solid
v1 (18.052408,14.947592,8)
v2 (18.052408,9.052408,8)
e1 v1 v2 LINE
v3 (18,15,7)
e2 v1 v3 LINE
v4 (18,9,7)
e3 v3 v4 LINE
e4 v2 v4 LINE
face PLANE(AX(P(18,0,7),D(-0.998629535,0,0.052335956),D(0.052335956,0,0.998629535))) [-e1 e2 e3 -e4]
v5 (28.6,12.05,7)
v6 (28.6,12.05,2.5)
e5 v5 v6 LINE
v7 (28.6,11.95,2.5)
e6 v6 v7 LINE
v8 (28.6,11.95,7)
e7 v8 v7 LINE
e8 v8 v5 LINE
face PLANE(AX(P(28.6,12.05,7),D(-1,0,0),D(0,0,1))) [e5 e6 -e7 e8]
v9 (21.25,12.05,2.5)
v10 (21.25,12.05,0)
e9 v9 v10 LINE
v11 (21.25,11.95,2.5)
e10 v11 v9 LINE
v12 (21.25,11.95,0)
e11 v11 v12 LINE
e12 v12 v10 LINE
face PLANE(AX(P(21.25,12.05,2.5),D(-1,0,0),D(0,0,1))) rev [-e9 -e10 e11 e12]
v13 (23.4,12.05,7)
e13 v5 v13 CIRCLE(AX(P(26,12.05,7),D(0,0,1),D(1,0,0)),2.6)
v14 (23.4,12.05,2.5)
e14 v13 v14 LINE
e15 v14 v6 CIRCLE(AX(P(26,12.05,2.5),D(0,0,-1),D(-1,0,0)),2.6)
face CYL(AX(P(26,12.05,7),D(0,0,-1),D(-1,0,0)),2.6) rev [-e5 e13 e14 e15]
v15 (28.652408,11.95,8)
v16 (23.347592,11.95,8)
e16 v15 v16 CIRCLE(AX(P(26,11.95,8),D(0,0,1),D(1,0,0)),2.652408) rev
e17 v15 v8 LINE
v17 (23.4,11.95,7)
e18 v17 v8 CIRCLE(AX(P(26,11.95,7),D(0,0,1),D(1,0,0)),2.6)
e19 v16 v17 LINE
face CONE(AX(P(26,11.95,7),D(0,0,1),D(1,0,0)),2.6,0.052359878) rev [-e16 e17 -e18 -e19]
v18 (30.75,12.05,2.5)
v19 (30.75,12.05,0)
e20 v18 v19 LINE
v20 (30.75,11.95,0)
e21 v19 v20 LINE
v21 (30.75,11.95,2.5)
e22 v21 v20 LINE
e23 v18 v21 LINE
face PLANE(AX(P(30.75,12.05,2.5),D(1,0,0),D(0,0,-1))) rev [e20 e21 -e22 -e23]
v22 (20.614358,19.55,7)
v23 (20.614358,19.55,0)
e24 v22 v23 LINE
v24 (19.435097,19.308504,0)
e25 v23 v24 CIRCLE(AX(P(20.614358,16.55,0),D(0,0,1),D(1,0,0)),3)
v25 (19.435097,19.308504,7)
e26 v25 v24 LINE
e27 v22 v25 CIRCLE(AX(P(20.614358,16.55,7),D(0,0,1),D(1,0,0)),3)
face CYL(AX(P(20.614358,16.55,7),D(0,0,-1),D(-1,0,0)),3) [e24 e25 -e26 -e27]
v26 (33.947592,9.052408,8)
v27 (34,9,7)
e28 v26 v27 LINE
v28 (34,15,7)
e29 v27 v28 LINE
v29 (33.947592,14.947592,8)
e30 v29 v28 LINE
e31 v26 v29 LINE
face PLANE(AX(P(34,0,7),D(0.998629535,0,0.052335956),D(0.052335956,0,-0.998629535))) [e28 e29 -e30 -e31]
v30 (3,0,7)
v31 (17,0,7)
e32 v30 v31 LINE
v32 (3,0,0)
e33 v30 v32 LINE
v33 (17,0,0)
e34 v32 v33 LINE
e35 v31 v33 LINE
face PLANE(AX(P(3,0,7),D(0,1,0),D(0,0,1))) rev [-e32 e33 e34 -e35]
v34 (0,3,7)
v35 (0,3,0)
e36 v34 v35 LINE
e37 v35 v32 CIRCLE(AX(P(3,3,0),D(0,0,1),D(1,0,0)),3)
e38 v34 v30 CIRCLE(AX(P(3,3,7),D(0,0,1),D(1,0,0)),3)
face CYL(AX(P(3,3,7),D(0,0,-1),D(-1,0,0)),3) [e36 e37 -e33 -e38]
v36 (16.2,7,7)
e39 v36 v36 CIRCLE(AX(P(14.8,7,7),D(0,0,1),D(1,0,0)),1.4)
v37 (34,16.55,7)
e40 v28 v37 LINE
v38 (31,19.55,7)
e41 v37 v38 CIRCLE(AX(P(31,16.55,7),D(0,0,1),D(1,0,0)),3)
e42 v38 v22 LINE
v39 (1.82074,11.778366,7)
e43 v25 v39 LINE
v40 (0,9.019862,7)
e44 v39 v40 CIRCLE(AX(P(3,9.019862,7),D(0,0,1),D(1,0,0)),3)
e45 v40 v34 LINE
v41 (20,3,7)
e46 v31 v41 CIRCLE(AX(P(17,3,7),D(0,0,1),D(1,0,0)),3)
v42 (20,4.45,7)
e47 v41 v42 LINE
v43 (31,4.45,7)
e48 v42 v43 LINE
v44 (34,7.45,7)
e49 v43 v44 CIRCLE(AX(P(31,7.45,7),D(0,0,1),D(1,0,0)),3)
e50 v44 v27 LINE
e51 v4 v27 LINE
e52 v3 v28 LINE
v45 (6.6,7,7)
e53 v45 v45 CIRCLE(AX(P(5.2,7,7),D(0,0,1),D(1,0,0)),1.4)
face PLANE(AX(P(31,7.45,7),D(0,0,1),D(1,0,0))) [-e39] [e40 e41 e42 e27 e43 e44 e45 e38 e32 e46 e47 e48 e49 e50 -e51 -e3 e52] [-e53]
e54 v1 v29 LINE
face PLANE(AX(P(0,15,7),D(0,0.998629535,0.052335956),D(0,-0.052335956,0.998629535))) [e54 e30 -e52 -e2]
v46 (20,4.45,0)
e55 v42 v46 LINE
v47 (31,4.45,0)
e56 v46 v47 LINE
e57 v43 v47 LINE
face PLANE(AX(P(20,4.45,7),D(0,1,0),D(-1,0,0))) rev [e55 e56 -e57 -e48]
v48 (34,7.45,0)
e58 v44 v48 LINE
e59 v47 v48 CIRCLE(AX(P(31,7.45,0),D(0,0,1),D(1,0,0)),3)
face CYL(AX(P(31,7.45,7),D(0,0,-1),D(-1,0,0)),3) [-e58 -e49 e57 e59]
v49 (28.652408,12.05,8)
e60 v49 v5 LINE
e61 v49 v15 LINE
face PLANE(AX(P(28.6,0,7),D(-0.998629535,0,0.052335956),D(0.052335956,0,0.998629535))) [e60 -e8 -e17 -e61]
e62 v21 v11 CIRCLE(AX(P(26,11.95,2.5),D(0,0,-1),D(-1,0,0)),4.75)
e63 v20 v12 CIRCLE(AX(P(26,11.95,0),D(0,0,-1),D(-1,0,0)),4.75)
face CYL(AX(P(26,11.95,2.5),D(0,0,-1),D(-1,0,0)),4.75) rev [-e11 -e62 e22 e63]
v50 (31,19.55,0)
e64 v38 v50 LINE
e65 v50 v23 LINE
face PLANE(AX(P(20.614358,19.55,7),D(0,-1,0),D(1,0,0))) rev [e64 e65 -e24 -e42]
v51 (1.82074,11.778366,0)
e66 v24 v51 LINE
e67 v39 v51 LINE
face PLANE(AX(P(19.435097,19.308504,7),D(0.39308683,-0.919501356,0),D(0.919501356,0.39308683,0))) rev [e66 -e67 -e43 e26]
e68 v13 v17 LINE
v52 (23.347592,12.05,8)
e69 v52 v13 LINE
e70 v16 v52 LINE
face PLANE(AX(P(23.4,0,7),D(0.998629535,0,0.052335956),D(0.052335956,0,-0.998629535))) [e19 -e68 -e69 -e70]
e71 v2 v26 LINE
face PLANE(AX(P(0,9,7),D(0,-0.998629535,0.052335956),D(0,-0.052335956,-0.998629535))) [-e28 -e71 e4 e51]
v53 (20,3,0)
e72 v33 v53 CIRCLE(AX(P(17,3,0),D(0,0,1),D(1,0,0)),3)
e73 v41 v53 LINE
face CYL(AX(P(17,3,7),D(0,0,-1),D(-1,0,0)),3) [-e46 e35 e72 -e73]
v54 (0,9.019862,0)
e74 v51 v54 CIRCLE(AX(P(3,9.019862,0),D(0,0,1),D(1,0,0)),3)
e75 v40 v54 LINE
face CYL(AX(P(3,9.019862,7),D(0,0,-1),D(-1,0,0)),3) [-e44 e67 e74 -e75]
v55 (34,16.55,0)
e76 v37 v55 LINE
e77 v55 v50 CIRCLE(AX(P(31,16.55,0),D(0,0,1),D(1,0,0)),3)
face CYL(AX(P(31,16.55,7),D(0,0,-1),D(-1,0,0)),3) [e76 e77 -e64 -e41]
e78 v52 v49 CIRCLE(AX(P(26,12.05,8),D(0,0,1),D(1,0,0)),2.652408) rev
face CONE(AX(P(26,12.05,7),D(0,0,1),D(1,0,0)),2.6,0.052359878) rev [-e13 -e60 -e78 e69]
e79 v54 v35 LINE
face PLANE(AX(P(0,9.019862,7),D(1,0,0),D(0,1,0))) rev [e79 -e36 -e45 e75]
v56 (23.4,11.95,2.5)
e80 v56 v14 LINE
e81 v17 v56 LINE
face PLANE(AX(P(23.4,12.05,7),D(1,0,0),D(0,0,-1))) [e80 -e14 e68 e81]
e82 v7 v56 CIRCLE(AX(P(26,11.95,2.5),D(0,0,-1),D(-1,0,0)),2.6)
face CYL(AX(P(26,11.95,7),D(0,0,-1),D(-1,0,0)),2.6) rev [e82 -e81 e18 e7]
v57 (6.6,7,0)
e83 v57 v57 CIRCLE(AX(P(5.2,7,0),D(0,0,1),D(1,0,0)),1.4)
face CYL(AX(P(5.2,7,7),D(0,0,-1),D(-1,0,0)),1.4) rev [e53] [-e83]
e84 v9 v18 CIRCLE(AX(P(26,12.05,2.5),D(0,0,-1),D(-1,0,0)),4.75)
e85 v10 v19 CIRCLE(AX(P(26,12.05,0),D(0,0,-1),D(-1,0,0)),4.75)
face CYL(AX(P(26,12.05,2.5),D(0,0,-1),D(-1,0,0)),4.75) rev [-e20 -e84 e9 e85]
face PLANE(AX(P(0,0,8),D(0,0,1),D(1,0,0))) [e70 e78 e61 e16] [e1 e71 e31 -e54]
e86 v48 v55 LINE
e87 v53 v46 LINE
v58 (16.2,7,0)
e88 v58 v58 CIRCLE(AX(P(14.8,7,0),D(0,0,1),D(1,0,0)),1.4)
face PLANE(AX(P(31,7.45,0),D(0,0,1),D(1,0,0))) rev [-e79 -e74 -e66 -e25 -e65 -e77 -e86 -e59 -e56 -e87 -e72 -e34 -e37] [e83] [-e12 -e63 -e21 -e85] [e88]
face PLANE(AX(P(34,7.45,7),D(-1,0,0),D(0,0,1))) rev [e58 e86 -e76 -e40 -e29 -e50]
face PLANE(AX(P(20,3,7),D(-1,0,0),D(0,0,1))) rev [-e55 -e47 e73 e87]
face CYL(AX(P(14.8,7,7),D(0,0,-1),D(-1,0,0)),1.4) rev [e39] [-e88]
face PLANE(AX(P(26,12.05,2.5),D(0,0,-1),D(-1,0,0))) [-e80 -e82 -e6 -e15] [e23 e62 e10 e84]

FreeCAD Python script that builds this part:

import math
import FreeCAD as App
import Part
import Sketcher

V = App.Vector
Q = App.Units.Quantity


def faces_at(feature, points):
    """Names of the faces that lie closest to the given points."""
    faces = feature.Shape.Faces
    near = lambda p: min(range(len(faces)), key=lambda i: faces[i].distToShape(Part.Vertex(*p))[0])
    return sorted({f"Face{near(p) + 1}" for p in points})

doc = App.newDocument("Part")
body = doc.addObject("PartDesign::Body", "Body")

sketch1 = body.newObject("Sketcher::SketchObject", "Sketch")
sketch1.AttachmentSupport = (doc.getObject("XY_Plane"), [""])
sketch1.MapMode = "FlatFace"
sketch1.addGeometry(Part.LineSegment(V(3, 0, 0), V(17, 0, 0)), False)
sketch1.addGeometry(Part.ArcOfCircle(Part.Circle(V(17, 3, 0), V(0, 0, 1), 3), math.radians(-90), math.radians(0)), False)
sketch1.addGeometry(Part.LineSegment(V(20, 3, 0), V(20, 4.45, 0)), False)
sketch1.addGeometry(Part.LineSegment(V(20, 4.45, 0), V(31, 4.45, 0)), False)
sketch1.addGeometry(Part.ArcOfCircle(Part.Circle(V(31, 7.45, 0), V(0, 0, 1), 3), math.radians(-90), math.radians(0)), False)
sketch1.addGeometry(Part.LineSegment(V(34, 7.45, 0), V(34, 16.55, 0)), False)
sketch1.addGeometry(Part.ArcOfCircle(Part.Circle(V(31, 16.55, 0), V(0, 0, 1), 3), math.radians(0), math.radians(90)), False)
sketch1.addGeometry(Part.LineSegment(V(31, 19.55, 0), V(20.61, 19.55, 0)), False)
sketch1.addGeometry(Part.ArcOfCircle(Part.Circle(V(20.61, 16.55, 0), V(0, 0, 1), 3), math.radians(90), math.radians(113)), False)
sketch1.addGeometry(Part.LineSegment(V(19.44, 19.31, 0), V(1.82, 11.78, 0)), False)
sketch1.addGeometry(Part.ArcOfCircle(Part.Circle(V(3, 9.02, 0), V(0, 0, 1), 3), math.radians(113), math.radians(180)), False)
sketch1.addGeometry(Part.LineSegment(V(0, 9.02, 0), V(0, 3, 0)), False)
sketch1.addGeometry(Part.ArcOfCircle(Part.Circle(V(3, 3, 0), V(0, 0, 1), 3), math.radians(180), math.radians(270)), False)
sketch1.addGeometry(Part.Circle(V(5.2, 7, 0), V(0, 0, 1), 1.4), False)
sketch1.addGeometry(Part.Circle(V(14.8, 7, 0), V(0, 0, 1), 1.4), False)
sketch1.addGeometry(Part.ArcOfCircle(Part.Circle(V(26, 12.05, 0), V(0, 0, 1), 2.6), math.radians(0), math.radians(180)), False)
sketch1.addGeometry(Part.LineSegment(V(28.6, 12.05, 0), V(28.6, 11.95, 0)), False)
sketch1.addGeometry(Part.ArcOfCircle(Part.Circle(V(26, 11.95, 0), V(0, 0, 1), 2.6), math.radians(180), math.radians(360)), False)
sketch1.addGeometry(Part.LineSegment(V(23.4, 11.95, 0), V(23.4, 12.05, 0)), False)
sketch1.addConstraint(Sketcher.Constraint("Tangent", 0, 2, 1, 1))
sketch1.addConstraint(Sketcher.Constraint("Tangent", 1, 2, 2, 1))
sketch1.addConstraint(Sketcher.Constraint("Coincident", 2, 2, 3, 1))
sketch1.addConstraint(Sketcher.Constraint("Tangent", 3, 2, 4, 1))
sketch1.addConstraint(Sketcher.Constraint("Tangent", 4, 2, 5, 1))
sketch1.addConstraint(Sketcher.Constraint("Tangent", 5, 2, 6, 1))
sketch1.addConstraint(Sketcher.Constraint("Tangent", 6, 2, 7, 1))
sketch1.addConstraint(Sketcher.Constraint("Tangent", 7, 2, 8, 1))
sketch1.addConstraint(Sketcher.Constraint("Tangent", 8, 2, 9, 1))
sketch1.addConstraint(Sketcher.Constraint("Tangent", 9, 2, 10, 1))
sketch1.addConstraint(Sketcher.Constraint("Tangent", 10, 2, 11, 1))
sketch1.addConstraint(Sketcher.Constraint("Tangent", 11, 2, 12, 1))
sketch1.addConstraint(Sketcher.Constraint("Tangent", 12, 2, 0, 1))
sketch1.addConstraint(Sketcher.Constraint("Tangent", 15, 1, 16, 1))
sketch1.addConstraint(Sketcher.Constraint("Tangent", 16, 2, 17, 2))
sketch1.addConstraint(Sketcher.Constraint("Tangent", 17, 1, 18, 1))
sketch1.addConstraint(Sketcher.Constraint("Tangent", 18, 2, 15, 2))
sketch1.addConstraint(Sketcher.Constraint("Horizontal", 0))
sketch1.addConstraint(Sketcher.Constraint("Vertical", 2))
sketch1.addConstraint(Sketcher.Constraint("Horizontal", 3))
sketch1.addConstraint(Sketcher.Constraint("Vertical", 5))
sketch1.addConstraint(Sketcher.Constraint("Horizontal", 7))
sketch1.addConstraint(Sketcher.Constraint("Vertical", 11))
sketch1.addConstraint(Sketcher.Constraint("Vertical", 16))
sketch1.addConstraint(Sketcher.Constraint("Vertical", 18))
sketch1.addConstraint(Sketcher.Constraint("Equal", 1, 4))
sketch1.addConstraint(Sketcher.Constraint("Equal", 4, 6))
sketch1.addConstraint(Sketcher.Constraint("Equal", 6, 8))
sketch1.addConstraint(Sketcher.Constraint("Equal", 8, 10))
sketch1.addConstraint(Sketcher.Constraint("Equal", 10, 12))
sketch1.addConstraint(Sketcher.Constraint("Equal", 13, 14))
sketch1.addConstraint(Sketcher.Constraint("PointOnObject", 0, 2, -1))
sketch1.addConstraint(Sketcher.Constraint("PointOnObject", 10, 2, -2))
sketch1.addConstraint(Sketcher.Constraint("Horizontal", 13, 3, 14, 3))
sketch1.addConstraint(Sketcher.Constraint("Radius", 1, Q("3 mm")))
sketch1.addConstraint(Sketcher.Constraint("Diameter", 13, Q("2.8 mm")))
sketch1.addConstraint(Sketcher.Constraint("Radius", 15, Q("2.6 mm")))
sketch1.addConstraint(Sketcher.Constraint("DistanceX", 0, 1, 0, 2, Q("14 mm")))
sketch1.addConstraint(Sketcher.Constraint("DistanceX", 3, 1, 3, 2, Q("11 mm")))
sketch1.addConstraint(Sketcher.Constraint("DistanceY", 5, 1, 5, 2, Q("9.1 mm")))
sketch1.addConstraint(Sketcher.Constraint("DistanceY", 16, 2, 16, 1, Q("0.1 mm")))
sketch1.addConstraint(Sketcher.Constraint("DistanceY", -1, 1, 13, 3, Q("7 mm")))
sketch1.addConstraint(Sketcher.Constraint("DistanceX", -1, 1, 15, 3, Q("26 mm")))
sketch1.addConstraint(Sketcher.Constraint("DistanceY", 2, 1, 2, 2, Q("1.45 mm")))
sketch1.addConstraint(Sketcher.Constraint("DistanceX", -1, 1, 13, 3, Q("5.2 mm")))
sketch1.addConstraint(Sketcher.Constraint("DistanceX", -1, 1, 14, 3, Q("14.8 mm")))
sketch1.addConstraint(Sketcher.Constraint("DistanceY", 15, 3, 6, 3, Q("4.5 mm")))
sketch1.addConstraint(Sketcher.Constraint("DistanceX", 7, 2, 7, 1, Q("10.385642 mm")))
sketch1.addConstraint(Sketcher.Constraint("DistanceY", 11, 2, 11, 1, Q("6.019862 mm")))
pad1 = body.newObject("PartDesign::Pad", "Pad")
pad1.Profile = sketch1
pad1.Length = 7

sketch2 = body.newObject("Sketcher::SketchObject", "Sketch001")
sketch2.AttachmentSupport = (doc.getObject("XY_Plane"), [""])
sketch2.MapMode = "FlatFace"
sketch2.addGeometry(Part.LineSegment(V(21.25, 11.95, 0), V(21.25, 12.05, 0)), False)
sketch2.addGeometry(Part.ArcOfCircle(Part.Circle(V(26, 12.05, 0), V(0, 0, 1), 4.75), math.radians(0), math.radians(180)), False)
sketch2.addGeometry(Part.LineSegment(V(30.75, 12.05, 0), V(30.75, 11.95, 0)), False)
sketch2.addGeometry(Part.ArcOfCircle(Part.Circle(V(26, 11.95, 0), V(0, 0, 1), 4.75), math.radians(180), math.radians(360)), False)
sketch2.addConstraint(Sketcher.Constraint("Tangent", 0, 2, 1, 2))
sketch2.addConstraint(Sketcher.Constraint("Tangent", 1, 1, 2, 1))
sketch2.addConstraint(Sketcher.Constraint("Tangent", 2, 2, 3, 2))
sketch2.addConstraint(Sketcher.Constraint("Tangent", 3, 1, 0, 1))
sketch2.addConstraint(Sketcher.Constraint("Vertical", 0))
sketch2.addConstraint(Sketcher.Constraint("Vertical", 2))
sketch2.addConstraint(Sketcher.Constraint("Radius", 1, Q("4.75 mm")))
sketch2.addConstraint(Sketcher.Constraint("DistanceY", 0, 1, 0, 2, Q("0.1 mm")))
sketch2.addConstraint(Sketcher.Constraint("DistanceX", -1, 1, 1, 3, Q("26 mm")))
sketch2.addConstraint(Sketcher.Constraint("DistanceY", -1, 1, 1, 3, Q("12.05 mm")))
pocket1 = body.newObject("PartDesign::Pocket", "Pocket")
pocket1.Profile = sketch2
pocket1.Length = 2.5
pocket1.Reversed = True
body2 = doc.addObject("PartDesign::Body", "Body001")

sketch3 = body2.newObject("Sketcher::SketchObject", "Sketch002")
sketch3.AttachmentSupport = (doc.getObject("XY_Plane001"), [""])
sketch3.MapMode = "FlatFace"
sketch3.AttachmentOffset = App.Placement(V(0, 0, 7), App.Rotation())
sketch3.addGeometry(Part.LineSegment(V(18, 15, 0), V(18, 9, 0)), False)
sketch3.addGeometry(Part.LineSegment(V(18, 9, 0), V(34, 9, 0)), False)
sketch3.addGeometry(Part.LineSegment(V(34, 9, 0), V(34, 15, 0)), False)
sketch3.addGeometry(Part.LineSegment(V(34, 15, 0), V(18, 15, 0)), False)
sketch3.addGeometry(Part.ArcOfCircle(Part.Circle(V(26, 12.05, 0), V(0, 0, 1), 2.6), math.radians(0), math.radians(180)), False)
sketch3.addGeometry(Part.LineSegment(V(28.6, 12.05, 0), V(28.6, 11.95, 0)), False)
sketch3.addGeometry(Part.ArcOfCircle(Part.Circle(V(26, 11.95, 0), V(0, 0, 1), 2.6), math.radians(180), math.radians(360)), False)
sketch3.addGeometry(Part.LineSegment(V(23.4, 11.95, 0), V(23.4, 12.05, 0)), False)
sketch3.addConstraint(Sketcher.Constraint("Coincident", 0, 2, 1, 1))
sketch3.addConstraint(Sketcher.Constraint("Coincident", 1, 2, 2, 1))
sketch3.addConstraint(Sketcher.Constraint("Coincident", 2, 2, 3, 1))
sketch3.addConstraint(Sketcher.Constraint("Coincident", 3, 2, 0, 1))
sketch3.addConstraint(Sketcher.Constraint("Tangent", 4, 1, 5, 1))
sketch3.addConstraint(Sketcher.Constraint("Tangent", 5, 2, 6, 2))
sketch3.addConstraint(Sketcher.Constraint("Tangent", 6, 1, 7, 1))
sketch3.addConstraint(Sketcher.Constraint("Tangent", 7, 2, 4, 2))
sketch3.addConstraint(Sketcher.Constraint("Vertical", 0))
sketch3.addConstraint(Sketcher.Constraint("Horizontal", 1))
sketch3.addConstraint(Sketcher.Constraint("Vertical", 2))
sketch3.addConstraint(Sketcher.Constraint("Horizontal", 3))
sketch3.addConstraint(Sketcher.Constraint("Vertical", 5))
sketch3.addConstraint(Sketcher.Constraint("Vertical", 7))
sketch3.addConstraint(Sketcher.Constraint("Radius", 4, Q("2.6 mm")))
sketch3.addConstraint(Sketcher.Constraint("DistanceX", 1, 1, 1, 2, Q("16 mm")))
sketch3.addConstraint(Sketcher.Constraint("DistanceY", 0, 2, 0, 1, Q("6 mm")))
sketch3.addConstraint(Sketcher.Constraint("DistanceY", 5, 2, 5, 1, Q("0.1 mm")))
sketch3.addConstraint(Sketcher.Constraint("DistanceX", -1, 1, 4, 3, Q("26 mm")))
sketch3.addConstraint(Sketcher.Constraint("DistanceX", -1, 1, 0, 2, Q("18 mm")))
sketch3.addConstraint(Sketcher.Constraint("DistanceY", -1, 1, 0, 2, Q("9 mm")))
sketch3.addConstraint(Sketcher.Constraint("DistanceY", -1, 1, 4, 3, Q("12.05 mm")))
pad2 = body2.newObject("PartDesign::Pad", "Pad001")
pad2.Profile = sketch3
pad2.Length = 1
doc.recompute()

datumplane = body2.newObject("PartDesign::Plane", "DatumPlane")
datumplane.AttachmentSupport = (doc.getObject("XY_Plane001"), [""])
datumplane.MapMode = "FlatFace"
datumplane.AttachmentOffset = App.Placement(V(0, 0, 7), App.Rotation())
draft = body2.newObject("PartDesign::Draft", "Draft")
draft.Base = (pad2, faces_at(pad2, [
    (26, 15, 7.5),
    (18, 12, 7.5),
    (26, 9, 7.5),
    (34, 12, 7.5),
    (26, 14.65, 7.5),
    (28.6, 12, 7.5),
    (26, 9.35, 7.5),
    (23.4, 12, 7.5),
]))
draft.NeutralPlane = (datumplane, [""])
draft.Angle = 3
draft.Reversed = False
doc.recompute()

boolean = body.newObject("PartDesign::Boolean", "Boolean")
boolean.Type = "Fuse"
boolean.addObjects([body2])

doc.recompute()
